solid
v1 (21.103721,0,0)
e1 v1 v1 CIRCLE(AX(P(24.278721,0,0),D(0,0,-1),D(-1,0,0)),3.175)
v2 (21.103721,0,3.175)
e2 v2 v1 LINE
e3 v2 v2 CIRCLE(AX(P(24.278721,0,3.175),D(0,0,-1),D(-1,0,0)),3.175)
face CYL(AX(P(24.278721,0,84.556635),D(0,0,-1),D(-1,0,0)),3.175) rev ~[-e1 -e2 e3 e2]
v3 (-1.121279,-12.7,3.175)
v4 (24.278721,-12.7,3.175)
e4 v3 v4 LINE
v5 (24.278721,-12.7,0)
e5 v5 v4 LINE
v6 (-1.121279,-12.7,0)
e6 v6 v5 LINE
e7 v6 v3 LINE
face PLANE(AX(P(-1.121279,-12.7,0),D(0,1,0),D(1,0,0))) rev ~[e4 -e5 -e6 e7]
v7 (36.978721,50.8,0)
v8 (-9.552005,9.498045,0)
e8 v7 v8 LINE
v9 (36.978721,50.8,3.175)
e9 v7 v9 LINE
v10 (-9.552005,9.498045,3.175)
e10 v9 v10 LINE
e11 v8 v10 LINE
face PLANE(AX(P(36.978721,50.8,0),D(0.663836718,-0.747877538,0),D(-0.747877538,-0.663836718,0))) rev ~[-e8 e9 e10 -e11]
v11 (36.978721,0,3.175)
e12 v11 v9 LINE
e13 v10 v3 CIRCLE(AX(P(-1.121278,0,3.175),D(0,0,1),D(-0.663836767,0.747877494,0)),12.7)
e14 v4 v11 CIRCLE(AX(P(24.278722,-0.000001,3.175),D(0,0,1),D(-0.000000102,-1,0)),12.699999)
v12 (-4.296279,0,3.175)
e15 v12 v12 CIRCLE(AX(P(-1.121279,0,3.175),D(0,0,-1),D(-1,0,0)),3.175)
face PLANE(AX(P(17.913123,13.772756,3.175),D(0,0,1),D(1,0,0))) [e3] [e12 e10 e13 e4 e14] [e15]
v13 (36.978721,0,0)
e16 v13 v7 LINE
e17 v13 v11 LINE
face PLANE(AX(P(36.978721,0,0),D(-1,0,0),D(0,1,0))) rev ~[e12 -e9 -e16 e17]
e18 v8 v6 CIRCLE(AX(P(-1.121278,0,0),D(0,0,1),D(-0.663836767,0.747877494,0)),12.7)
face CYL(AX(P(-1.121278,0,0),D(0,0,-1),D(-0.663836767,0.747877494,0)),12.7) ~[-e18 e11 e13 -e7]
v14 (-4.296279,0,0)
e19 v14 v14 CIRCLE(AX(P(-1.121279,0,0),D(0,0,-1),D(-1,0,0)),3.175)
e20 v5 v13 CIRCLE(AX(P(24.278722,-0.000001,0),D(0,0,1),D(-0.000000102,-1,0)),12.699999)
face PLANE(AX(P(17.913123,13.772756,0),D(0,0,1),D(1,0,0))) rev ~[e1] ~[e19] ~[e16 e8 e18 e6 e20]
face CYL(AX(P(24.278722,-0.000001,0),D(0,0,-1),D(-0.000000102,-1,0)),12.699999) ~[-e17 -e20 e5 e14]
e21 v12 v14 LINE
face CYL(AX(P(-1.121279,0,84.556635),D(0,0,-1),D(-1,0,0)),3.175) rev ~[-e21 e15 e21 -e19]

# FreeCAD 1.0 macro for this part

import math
import FreeCAD as App
import Part
import Sketcher
from FreeCAD import Vector
Q = App.Units.Quantity

doc = App.newDocument("Part")
body = doc.addObject("PartDesign::Body", "Body")

# Sketch on XY plane
sketch1 = body.newObject("Sketcher::SketchObject", "Sketch")
sketch1.AttachmentSupport = (doc.getObject("XY_Plane"), [""])
sketch1.MapMode = "FlatFace"
sketch1.addGeometry(Part.ArcOfCircle(Part.Circle(Vector(-1.121278, 0, 0), Vector(0, 0, 1), 12.7), math.radians(131.593147), math.radians(269.999994)), False)
sketch1.addGeometry(Part.LineSegment(Vector(-1.121279, -12.7, 0), Vector(24.278721, -12.7, 0)), False)
sketch1.addGeometry(Part.ArcOfCircle(Part.Circle(Vector(24.278722, -0.000001, 0), Vector(0, 0, 1), 12.699999), math.radians(-90.000006), math.radians(0.000006)), False)
sketch1.addGeometry(Part.LineSegment(Vector(36.978721, 0, 0), Vector(36.978721, 50.8, 0)), False)
sketch1.addGeometry(Part.LineSegment(Vector(36.978721, 50.8, 0), Vector(-9.552005, 9.498045, 0)), False)
sketch1.addConstraint(Sketcher.Constraint("Tangent", 0, 2, 1, 1))
sketch1.addConstraint(Sketcher.Constraint("Tangent", 1, 2, 2, 1))
sketch1.addConstraint(Sketcher.Constraint("Tangent", 2, 2, 3, 1))
sketch1.addConstraint(Sketcher.Constraint("Coincident", 3, 2, 4, 1))
sketch1.addConstraint(Sketcher.Constraint("Tangent", 4, 2, 0, 1))
sketch1.addConstraint(Sketcher.Constraint("Horizontal", 1))
sketch1.addConstraint(Sketcher.Constraint("Vertical", 3))
sketch1.addConstraint(Sketcher.Constraint("Equal", 0, 2))
sketch1.addConstraint(Sketcher.Constraint("PointOnObject", 0, 3, -1))
sketch1.addConstraint(Sketcher.Constraint("Radius", 0, Q("0.5 in")))
sketch1.addConstraint(Sketcher.Constraint("DistanceX", 1, 1, 1, 2, Q("1 in")))
sketch1.addConstraint(Sketcher.Constraint("DistanceY", 3, 1, 3, 2, Q("2 in")))
sketch1.addConstraint(Sketcher.Constraint("DistanceX", 0, 2, -1, 1, Q("1.121279 mm")))
pad1 = body.newObject("PartDesign::Pad", "Pad")
pad1.Profile = sketch1
pad1.Length = Q("0.125 in")

# Sketch on XY plane
sketch2 = body.newObject("Sketcher::SketchObject", "Sketch001")
sketch2.AttachmentSupport = (doc.getObject("XY_Plane"), [""])
sketch2.MapMode = "FlatFace"
sketch2.AttachmentOffset = App.Placement(Vector(0, 0, 0.125 * 25.4), App.Rotation())
sketch2.addGeometry(Part.Circle(Vector(24.278721, 0, 0), Vector(0, 0, 1), 3.175), False)
sketch2.addGeometry(Part.Circle(Vector(-1.121279, 0, 0), Vector(0, 0, 1), 3.175), False)
sketch2.addConstraint(Sketcher.Constraint("Equal", 0, 1))
sketch2.addConstraint(Sketcher.Constraint("PointOnObject", 0, 3, -1))
sketch2.addConstraint(Sketcher.Constraint("PointOnObject", 1, 3, -1))
sketch2.addConstraint(Sketcher.Constraint("Diameter", 0, Q("0.25 in")))
sketch2.addConstraint(Sketcher.Constraint("DistanceX", 1, 3, 0, 3, Q("1 in")))
sketch2.addConstraint(Sketcher.Constraint("DistanceX", -1, 1, 0, 3, Q("24.278721 mm")))
doc.recompute()
hole = body.newObject("PartDesign::Hole", "Hole")
hole.Profile = sketch2
hole.ThreadType = "None"
hole.Diameter = Q("0.25 in")
hole.DepthType = "ThroughAll"

doc.recompute()
